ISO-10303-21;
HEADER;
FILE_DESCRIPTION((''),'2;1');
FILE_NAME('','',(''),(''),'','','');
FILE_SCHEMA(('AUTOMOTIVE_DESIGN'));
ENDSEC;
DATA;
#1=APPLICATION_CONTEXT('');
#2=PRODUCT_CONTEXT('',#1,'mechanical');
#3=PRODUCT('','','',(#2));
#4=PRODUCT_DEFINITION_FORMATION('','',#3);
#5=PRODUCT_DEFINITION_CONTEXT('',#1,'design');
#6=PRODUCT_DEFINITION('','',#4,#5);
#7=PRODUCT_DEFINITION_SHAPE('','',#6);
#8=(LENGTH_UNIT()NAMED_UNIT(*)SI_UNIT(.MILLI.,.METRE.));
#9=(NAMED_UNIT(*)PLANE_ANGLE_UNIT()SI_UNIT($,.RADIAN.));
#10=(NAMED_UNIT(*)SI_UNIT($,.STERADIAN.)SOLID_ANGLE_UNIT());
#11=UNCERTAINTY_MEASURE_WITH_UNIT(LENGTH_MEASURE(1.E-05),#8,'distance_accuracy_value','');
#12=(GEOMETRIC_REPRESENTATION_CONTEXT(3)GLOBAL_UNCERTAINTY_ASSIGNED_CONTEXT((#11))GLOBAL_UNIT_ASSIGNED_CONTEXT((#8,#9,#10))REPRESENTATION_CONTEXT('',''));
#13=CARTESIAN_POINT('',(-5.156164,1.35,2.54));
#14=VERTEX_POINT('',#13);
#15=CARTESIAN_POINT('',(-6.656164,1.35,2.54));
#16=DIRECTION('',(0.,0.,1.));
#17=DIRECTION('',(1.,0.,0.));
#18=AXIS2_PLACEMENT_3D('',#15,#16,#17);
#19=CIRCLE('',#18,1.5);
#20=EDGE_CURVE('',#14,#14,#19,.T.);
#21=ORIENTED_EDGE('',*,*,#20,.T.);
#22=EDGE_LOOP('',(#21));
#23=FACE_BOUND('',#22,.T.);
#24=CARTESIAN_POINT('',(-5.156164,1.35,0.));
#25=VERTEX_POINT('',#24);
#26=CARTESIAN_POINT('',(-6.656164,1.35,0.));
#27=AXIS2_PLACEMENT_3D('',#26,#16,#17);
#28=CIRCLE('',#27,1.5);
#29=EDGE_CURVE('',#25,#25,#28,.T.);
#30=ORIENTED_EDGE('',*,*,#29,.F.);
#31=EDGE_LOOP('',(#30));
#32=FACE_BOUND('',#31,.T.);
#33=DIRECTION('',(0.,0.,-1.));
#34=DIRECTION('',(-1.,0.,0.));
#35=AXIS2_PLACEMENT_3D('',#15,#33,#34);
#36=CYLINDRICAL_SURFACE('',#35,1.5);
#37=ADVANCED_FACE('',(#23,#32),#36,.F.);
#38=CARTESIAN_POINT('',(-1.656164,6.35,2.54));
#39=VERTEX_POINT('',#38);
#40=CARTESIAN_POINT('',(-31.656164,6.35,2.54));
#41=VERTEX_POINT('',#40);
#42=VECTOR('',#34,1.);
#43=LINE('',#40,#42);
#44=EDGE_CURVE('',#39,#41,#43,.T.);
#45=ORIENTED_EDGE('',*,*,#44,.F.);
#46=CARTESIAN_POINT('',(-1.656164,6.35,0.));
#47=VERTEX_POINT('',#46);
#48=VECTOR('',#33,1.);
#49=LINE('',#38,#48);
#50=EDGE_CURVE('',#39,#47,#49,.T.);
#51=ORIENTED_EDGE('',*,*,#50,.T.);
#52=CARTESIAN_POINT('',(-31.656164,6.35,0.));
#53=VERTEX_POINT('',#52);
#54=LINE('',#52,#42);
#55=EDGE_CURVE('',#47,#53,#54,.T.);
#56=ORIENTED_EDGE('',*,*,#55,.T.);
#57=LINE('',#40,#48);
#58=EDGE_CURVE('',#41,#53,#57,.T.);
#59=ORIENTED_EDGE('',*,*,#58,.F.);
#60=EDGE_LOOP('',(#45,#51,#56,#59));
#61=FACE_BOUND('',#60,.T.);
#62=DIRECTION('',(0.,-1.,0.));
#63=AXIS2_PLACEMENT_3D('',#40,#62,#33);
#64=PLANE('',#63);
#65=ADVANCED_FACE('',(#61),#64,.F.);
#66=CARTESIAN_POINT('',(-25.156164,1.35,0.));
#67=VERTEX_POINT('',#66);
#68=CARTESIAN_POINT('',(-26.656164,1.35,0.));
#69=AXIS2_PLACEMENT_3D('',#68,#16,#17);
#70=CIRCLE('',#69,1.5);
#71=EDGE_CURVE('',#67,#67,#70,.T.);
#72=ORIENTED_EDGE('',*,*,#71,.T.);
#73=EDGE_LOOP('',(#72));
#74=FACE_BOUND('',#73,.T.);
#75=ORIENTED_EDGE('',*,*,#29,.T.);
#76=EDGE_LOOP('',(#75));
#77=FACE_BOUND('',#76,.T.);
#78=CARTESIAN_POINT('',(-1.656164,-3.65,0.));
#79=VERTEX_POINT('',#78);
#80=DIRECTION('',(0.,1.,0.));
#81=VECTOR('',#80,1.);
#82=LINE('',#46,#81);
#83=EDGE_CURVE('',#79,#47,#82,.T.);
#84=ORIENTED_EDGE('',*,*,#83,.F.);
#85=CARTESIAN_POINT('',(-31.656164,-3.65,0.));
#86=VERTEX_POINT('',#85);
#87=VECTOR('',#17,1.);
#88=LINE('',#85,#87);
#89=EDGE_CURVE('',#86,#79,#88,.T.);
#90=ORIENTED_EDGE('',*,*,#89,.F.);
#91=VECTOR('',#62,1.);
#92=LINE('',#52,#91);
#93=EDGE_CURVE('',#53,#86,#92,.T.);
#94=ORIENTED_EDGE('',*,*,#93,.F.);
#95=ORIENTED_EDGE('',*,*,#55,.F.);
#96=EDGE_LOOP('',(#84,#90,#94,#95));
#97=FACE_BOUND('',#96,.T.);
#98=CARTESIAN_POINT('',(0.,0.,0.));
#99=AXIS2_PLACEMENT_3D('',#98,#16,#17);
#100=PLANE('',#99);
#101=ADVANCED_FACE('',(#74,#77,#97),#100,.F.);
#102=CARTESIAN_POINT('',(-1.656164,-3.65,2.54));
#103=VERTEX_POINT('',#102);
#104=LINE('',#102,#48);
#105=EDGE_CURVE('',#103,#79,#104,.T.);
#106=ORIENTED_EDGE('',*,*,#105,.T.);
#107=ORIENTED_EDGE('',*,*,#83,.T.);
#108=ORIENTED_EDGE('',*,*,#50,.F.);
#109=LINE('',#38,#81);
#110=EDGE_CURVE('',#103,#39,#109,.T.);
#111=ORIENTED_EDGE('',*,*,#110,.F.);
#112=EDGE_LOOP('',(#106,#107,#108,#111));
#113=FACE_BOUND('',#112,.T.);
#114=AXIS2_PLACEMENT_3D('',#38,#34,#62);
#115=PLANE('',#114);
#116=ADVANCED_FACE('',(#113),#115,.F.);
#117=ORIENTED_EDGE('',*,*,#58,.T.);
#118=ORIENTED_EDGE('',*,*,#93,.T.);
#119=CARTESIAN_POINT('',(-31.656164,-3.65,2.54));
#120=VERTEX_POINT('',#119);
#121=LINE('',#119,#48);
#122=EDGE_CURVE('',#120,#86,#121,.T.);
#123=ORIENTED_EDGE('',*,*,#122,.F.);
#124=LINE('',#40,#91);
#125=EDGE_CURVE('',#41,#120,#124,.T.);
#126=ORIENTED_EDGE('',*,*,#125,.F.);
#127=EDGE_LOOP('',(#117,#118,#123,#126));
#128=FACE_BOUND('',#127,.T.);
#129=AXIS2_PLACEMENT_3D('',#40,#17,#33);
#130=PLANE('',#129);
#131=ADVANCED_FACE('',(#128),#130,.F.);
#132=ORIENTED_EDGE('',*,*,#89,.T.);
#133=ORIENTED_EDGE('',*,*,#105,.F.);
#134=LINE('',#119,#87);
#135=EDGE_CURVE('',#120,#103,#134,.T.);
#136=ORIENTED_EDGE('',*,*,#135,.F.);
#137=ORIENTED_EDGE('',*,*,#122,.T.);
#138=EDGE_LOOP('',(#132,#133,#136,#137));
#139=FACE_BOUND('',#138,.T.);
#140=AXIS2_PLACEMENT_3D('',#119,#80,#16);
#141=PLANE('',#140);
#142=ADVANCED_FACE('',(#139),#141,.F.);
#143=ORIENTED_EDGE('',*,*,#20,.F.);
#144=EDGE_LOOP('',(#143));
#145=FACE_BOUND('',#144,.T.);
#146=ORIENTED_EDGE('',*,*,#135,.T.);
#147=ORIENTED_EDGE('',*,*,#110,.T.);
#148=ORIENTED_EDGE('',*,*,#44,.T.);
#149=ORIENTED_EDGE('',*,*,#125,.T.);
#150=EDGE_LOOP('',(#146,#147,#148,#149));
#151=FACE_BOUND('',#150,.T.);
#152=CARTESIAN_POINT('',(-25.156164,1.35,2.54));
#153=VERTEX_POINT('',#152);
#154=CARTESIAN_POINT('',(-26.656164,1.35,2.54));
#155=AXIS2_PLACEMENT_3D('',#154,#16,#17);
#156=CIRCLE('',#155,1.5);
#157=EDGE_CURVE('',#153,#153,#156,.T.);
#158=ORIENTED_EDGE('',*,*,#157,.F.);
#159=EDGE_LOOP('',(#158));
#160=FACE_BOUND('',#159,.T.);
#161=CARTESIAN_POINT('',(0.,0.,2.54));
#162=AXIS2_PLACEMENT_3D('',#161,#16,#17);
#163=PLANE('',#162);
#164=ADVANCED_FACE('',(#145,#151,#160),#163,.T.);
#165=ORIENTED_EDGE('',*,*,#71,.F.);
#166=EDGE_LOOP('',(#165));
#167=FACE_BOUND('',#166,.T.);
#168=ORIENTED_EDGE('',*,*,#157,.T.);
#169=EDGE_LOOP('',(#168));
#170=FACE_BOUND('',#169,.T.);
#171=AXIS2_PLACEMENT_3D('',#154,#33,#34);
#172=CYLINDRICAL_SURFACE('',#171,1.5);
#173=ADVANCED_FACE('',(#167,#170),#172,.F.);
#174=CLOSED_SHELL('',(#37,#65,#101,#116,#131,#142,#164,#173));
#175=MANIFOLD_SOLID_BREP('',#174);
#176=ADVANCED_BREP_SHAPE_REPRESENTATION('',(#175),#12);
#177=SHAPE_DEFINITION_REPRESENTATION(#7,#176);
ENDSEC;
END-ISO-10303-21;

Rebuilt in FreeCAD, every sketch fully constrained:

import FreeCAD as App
import Part
import Sketcher
Q = App.Units.Quantity

doc = App.newDocument("Part")
body = doc.addObject("PartDesign::Body", "Body")

sketch1 = doc.addObject("Sketcher::SketchObject", "Sketch")
body.addObject(sketch1)
sketch1.AttachmentSupport = (doc.XY_Plane, [""])
sketch1.MapMode = "FlatFace"
sketch1.addGeometry([
    Part.LineSegment(App.Vector(-31.7, 6.3, 0), App.Vector(-31.7, -3.6, 0)),
    Part.LineSegment(App.Vector(-31.7, -3.6, 0), App.Vector(-1.7, -3.6, 0)),
    Part.LineSegment(App.Vector(-1.7, -3.6, 0), App.Vector(-1.7, 6.3, 0)),
    Part.LineSegment(App.Vector(-1.7, 6.3, 0), App.Vector(-31.7, 6.3, 0)),
    Part.Circle(App.Vector(-26.7, 1.4, 0), App.Vector(0, 0, 1), 1.5),
    Part.Circle(App.Vector(-6.7, 1.4, 0), App.Vector(0, 0, 1), 1.5),
], False)
sketch1.addConstraint([
    Sketcher.Constraint("Coincident", 0, 2, 1, 1),
    Sketcher.Constraint("Coincident", 1, 2, 2, 1),
    Sketcher.Constraint("Coincident", 2, 2, 3, 1),
    Sketcher.Constraint("Coincident", 3, 2, 0, 1),
    Sketcher.Constraint("Vertical", 0),
    Sketcher.Constraint("Horizontal", 1),
    Sketcher.Constraint("Vertical", 2),
    Sketcher.Constraint("Horizontal", 3),
    Sketcher.Constraint("Equal", 4, 5),
    Sketcher.Constraint("Horizontal", 4, 3, 5, 3),
    Sketcher.Constraint("Diameter", 4, Q("3 mm")),
    Sketcher.Constraint("DistanceX", 1, 1, 1, 2, Q("30 mm")),
    Sketcher.Constraint("DistanceY", 0, 2, 0, 1, Q("10 mm")),
    Sketcher.Constraint("DistanceX", 4, 3, 5, 3, Q("20 mm")),
    Sketcher.Constraint("DistanceX", 0, 2, 4, 3, Q("5 mm")),
    Sketcher.Constraint("DistanceY", 0, 2, 4, 3, Q("5 mm")),
    Sketcher.Constraint("DistanceY", -1, 1, 4, 3, Q("1.35 mm")),
    Sketcher.Constraint("DistanceX", 4, 3, -1, 1, Q("26.656164 mm")),
])
pad1 = doc.addObject("PartDesign::Pad", "Pad")
body.addObject(pad1)
pad1.Profile = sketch1
pad1.Length = 2.54

doc.recompute()
